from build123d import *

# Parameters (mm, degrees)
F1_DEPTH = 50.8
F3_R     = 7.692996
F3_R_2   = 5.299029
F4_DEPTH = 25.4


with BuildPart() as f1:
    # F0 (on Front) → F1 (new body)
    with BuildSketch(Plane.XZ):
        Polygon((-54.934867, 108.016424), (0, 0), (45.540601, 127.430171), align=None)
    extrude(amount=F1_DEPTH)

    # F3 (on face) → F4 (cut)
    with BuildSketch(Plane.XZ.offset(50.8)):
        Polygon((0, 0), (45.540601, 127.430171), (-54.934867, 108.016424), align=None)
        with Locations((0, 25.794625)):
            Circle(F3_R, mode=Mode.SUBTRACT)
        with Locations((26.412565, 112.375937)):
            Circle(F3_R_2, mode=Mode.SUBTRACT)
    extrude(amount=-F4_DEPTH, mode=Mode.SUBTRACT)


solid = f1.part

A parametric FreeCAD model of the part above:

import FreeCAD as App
import Part
import Sketcher
from FreeCAD import Vector
Q = App.Units.Quantity

doc = App.newDocument("Part")
body = doc.addObject("PartDesign::Body", "Body")

# Sketch on XZ plane
sketch1 = doc.addObject("Sketcher::SketchObject", "Sketch")
body.addObject(sketch1)
sketch1.AttachmentSupport = (doc.XZ_Plane, [""])
sketch1.MapMode = "FlatFace"
sketch1.addGeometry(Part.LineSegment(Vector(-55, 108, 0), Vector(0, 0, 0)), False)
sketch1.addGeometry(Part.LineSegment(Vector(0, 0, 0), Vector(46, 127, 0)), False)
sketch1.addGeometry(Part.LineSegment(Vector(46, 127, 0), Vector(-55, 108, 0)), False)
sketch1.addConstraint(Sketcher.Constraint("Coincident", 0, 2, 1, 1))
sketch1.addConstraint(Sketcher.Constraint("Coincident", 1, 2, 2, 1))
sketch1.addConstraint(Sketcher.Constraint("Coincident", 2, 2, 0, 1))
sketch1.addConstraint(Sketcher.Constraint("Coincident", 0, 2, -1, 1))
sketch1.addConstraint(Sketcher.Constraint("DistanceX", -1, 1, 1, 2, Q("45.540601 mm")))
sketch1.addConstraint(Sketcher.Constraint("Distance", 0, Q("121.18328 mm")))
sketch1.addConstraint(Sketcher.Constraint("DistanceY", -1, 1, 1, 2, Q("127.430171 mm")))
sketch1.addConstraint(Sketcher.Constraint("DistanceX", 2, 2, 1, 2, Q("100.475468 mm")))
pad1 = doc.addObject("PartDesign::Pad", "Pad")
body.addObject(pad1)
pad1.Profile = sketch1
pad1.Length = Q("2 in")

# Sketch on XZ plane
sketch2 = doc.addObject("Sketcher::SketchObject", "Sketch001")
body.addObject(sketch2)
sketch2.AttachmentSupport = (doc.XZ_Plane, [""])
sketch2.MapMode = "FlatFace"
sketch2.AttachmentOffset = App.Placement(Vector(0, 0, 2 * 25.4), App.Rotation())
sketch2.addGeometry(Part.LineSegment(Vector(0, 0, 0), Vector(46, 127, 0)), False)
sketch2.addGeometry(Part.LineSegment(Vector(46, 127, 0), Vector(-55, 108, 0)), False)
sketch2.addGeometry(Part.LineSegment(Vector(-55, 108, 0), Vector(0, 0, 0)), False)
sketch2.addGeometry(Part.Circle(Vector(0, 26, 0), Vector(0, 0, 1), 8), False)
sketch2.addGeometry(Part.Circle(Vector(26, 112, 0), Vector(0, 0, 1), 5), False)
sketch2.addConstraint(Sketcher.Constraint("Coincident", 0, 2, 1, 1))
sketch2.addConstraint(Sketcher.Constraint("Coincident", 1, 2, 2, 1))
sketch2.addConstraint(Sketcher.Constraint("Coincident", 2, 2, 0, 1))
sketch2.addConstraint(Sketcher.Constraint("Coincident", 2, 2, -1, 1))
sketch2.addConstraint(Sketcher.Constraint("PointOnObject", 3, 3, -2))
sketch2.addConstraint(Sketcher.Constraint("Diameter", 3, Q("15.385992 mm")))
sketch2.addConstraint(Sketcher.Constraint("Diameter", 4, Q("10.598058 mm")))
sketch2.addConstraint(Sketcher.Constraint("DistanceX", -1, 1, 0, 2, Q("45.540601 mm")))
sketch2.addConstraint(Sketcher.Constraint("DistanceY", 3, 3, 1, 2, Q("82.221799 mm")))
sketch2.addConstraint(Sketcher.Constraint("Distance", 2, Q("121.18328 mm")))
sketch2.addConstraint(Sketcher.Constraint("DistanceY", -1, 1, 0, 2, Q("127.430171 mm")))
sketch2.addConstraint(Sketcher.Constraint("DistanceY", 3, 3, 4, 3, Q("86.581312 mm")))
sketch2.addConstraint(Sketcher.Constraint("DistanceX", 1, 2, 4, 3, Q("81.347432 mm")))
sketch2.addConstraint(Sketcher.Constraint("DistanceX", 1, 2, 0, 2, Q("100.475468 mm")))
pocket1 = doc.addObject("PartDesign::Pocket", "Pocket")
body.addObject(pocket1)
pocket1.Profile = sketch2
pocket1.Length = Q("1 in")

doc.recompute()
